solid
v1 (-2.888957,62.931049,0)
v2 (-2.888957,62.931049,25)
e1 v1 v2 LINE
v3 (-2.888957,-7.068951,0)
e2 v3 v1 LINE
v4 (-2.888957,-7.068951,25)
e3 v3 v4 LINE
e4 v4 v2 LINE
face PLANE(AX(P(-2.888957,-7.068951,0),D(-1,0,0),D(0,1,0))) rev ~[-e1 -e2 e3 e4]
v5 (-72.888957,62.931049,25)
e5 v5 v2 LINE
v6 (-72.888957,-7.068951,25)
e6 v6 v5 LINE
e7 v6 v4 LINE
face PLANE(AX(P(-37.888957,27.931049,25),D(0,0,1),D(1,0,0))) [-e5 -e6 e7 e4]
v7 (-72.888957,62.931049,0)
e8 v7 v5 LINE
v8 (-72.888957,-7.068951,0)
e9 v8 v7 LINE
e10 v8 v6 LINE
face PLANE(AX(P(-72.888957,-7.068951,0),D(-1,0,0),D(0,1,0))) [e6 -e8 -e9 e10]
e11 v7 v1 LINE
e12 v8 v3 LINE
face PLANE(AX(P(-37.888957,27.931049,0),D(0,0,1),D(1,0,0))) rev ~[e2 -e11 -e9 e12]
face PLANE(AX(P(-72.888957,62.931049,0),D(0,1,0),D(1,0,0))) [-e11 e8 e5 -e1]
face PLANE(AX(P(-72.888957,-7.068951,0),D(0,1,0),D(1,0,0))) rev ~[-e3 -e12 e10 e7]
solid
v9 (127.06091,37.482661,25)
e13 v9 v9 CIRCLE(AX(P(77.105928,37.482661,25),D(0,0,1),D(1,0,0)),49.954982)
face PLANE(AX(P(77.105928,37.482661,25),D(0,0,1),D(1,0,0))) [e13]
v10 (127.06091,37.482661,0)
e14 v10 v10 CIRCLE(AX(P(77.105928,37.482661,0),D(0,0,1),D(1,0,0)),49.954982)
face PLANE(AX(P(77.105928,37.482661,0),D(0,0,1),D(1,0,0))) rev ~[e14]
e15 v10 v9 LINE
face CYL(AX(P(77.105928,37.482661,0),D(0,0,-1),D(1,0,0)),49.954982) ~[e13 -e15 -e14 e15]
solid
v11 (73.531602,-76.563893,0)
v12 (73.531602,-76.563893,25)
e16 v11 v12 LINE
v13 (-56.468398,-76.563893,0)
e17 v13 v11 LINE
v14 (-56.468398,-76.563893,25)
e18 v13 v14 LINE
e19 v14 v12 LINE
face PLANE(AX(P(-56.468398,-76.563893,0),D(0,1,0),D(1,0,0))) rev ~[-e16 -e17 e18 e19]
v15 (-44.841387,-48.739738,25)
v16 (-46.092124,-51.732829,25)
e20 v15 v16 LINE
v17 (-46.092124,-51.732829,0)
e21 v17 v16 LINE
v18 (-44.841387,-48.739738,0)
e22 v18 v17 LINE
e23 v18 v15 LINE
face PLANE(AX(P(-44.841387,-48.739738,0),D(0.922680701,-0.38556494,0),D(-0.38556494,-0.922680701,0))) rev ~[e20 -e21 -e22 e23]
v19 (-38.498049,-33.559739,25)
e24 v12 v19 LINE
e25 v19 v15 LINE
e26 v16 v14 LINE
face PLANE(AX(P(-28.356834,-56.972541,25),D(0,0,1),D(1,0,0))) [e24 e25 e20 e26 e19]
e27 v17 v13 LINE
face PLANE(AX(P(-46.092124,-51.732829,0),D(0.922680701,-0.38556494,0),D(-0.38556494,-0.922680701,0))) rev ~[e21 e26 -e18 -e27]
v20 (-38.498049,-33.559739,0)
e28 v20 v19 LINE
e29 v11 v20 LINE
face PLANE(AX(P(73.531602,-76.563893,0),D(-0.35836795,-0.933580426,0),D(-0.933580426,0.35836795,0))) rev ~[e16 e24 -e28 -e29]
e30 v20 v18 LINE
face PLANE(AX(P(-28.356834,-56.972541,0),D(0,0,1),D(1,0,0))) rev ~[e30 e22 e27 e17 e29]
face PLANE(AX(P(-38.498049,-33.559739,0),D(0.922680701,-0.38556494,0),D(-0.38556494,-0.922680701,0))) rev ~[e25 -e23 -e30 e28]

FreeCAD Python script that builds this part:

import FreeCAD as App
import Part
import Sketcher
Q = App.Units.Quantity


def add_polygon(sketch, points):
    """Adds a closed chain of lines whose ends are joined by coincident constraints."""
    first, n = sketch.GeometryCount, len(points)
    for a, b in zip(points, points[1:] + points[:1]):
        sketch.addGeometry(Part.LineSegment(App.Vector(*a, 0), App.Vector(*b, 0)), False)
    for i in range(n):
        sketch.addConstraint(Sketcher.Constraint("Coincident", first + i, 2, first + (i + 1) % n, 1))

doc = App.newDocument("Part")
body = doc.addObject("PartDesign::Body", "Body")

sketch1 = body.newObject("Sketcher::SketchObject", "Sketch")
sketch1.AttachmentSupport = (doc.getObject("XY_Plane"), [""])
sketch1.MapMode = "FlatFace"
add_polygon(sketch1, [(-73, 63), (-73, -7), (-3, -7), (-3, 63)])
sketch1.addConstraint(Sketcher.Constraint("Vertical", 0))
sketch1.addConstraint(Sketcher.Constraint("Horizontal", 1))
sketch1.addConstraint(Sketcher.Constraint("Vertical", 2))
sketch1.addConstraint(Sketcher.Constraint("Horizontal", 3))
sketch1.addConstraint(Sketcher.Constraint("Equal", 3, 0))
sketch1.addConstraint(Sketcher.Constraint("DistanceX", 1, 1, 1, 2, Q("70 mm")))
sketch1.addConstraint(Sketcher.Constraint("DistanceY", 0, 2, -1, 1, Q("7.068951 mm")))
sketch1.addConstraint(Sketcher.Constraint("DistanceX", 0, 2, -1, 1, Q("72.888957 mm")))
pad1 = body.newObject("PartDesign::Pad", "Pad")
pad1.Profile = sketch1
pad1.Length = 25
body2 = doc.addObject("PartDesign::Body", "Body001")

sketch2 = body2.newObject("Sketcher::SketchObject", "Sketch001")
sketch2.AttachmentSupport = (doc.getObject("XY_Plane001"), [""])
sketch2.MapMode = "FlatFace"
sketch2.addGeometry(Part.Circle(App.Vector(77, 37, 0), App.Vector(0, 0, 1), 50), False)
sketch2.addConstraint(Sketcher.Constraint("Diameter", 0, Q("99.909963 mm")))
sketch2.addConstraint(Sketcher.Constraint("DistanceX", -1, 1, 0, 3, Q("77.105928 mm")))
sketch2.addConstraint(Sketcher.Constraint("DistanceY", -1, 1, 0, 3, Q("37.482661 mm")))
pad2 = body2.newObject("PartDesign::Pad", "Pad001")
pad2.Profile = sketch2
pad2.Length = 25
body3 = doc.addObject("PartDesign::Body", "Body002")

sketch3 = body3.newObject("Sketcher::SketchObject", "Sketch002")
sketch3.AttachmentSupport = (doc.getObject("XY_Plane002"), [""])
sketch3.MapMode = "FlatFace"
add_polygon(sketch3, [(-44.8, -48.7), (-46.1, -51.7), (-56.5, -76.6), (73.5, -76.6), (-38.5, -33.6)])
sketch3.addConstraint(Sketcher.Constraint("Horizontal", 2))
sketch3.addConstraint(Sketcher.Constraint("Parallel", 0, 1))
sketch3.addConstraint(Sketcher.Constraint("Parallel", 1, 4))
sketch3.addConstraint(Sketcher.Constraint("DistanceX", 2, 1, 2, 2, Q("130 mm")))
sketch3.addConstraint(Sketcher.Constraint("Angle", 3, Q("159 deg")))
sketch3.addConstraint(Sketcher.Constraint("Distance", 3, Q("120 mm")))
sketch3.addConstraint(Sketcher.Constraint("DistanceY", 4, 2, 3, 2, Q("15.179999 mm")))
sketch3.addConstraint(Sketcher.Constraint("DistanceX", 1, 2, -1, 1, Q("56.468398 mm")))
sketch3.addConstraint(Sketcher.Constraint("Distance", 0, Q("3.243908 mm")))
sketch3.addConstraint(Sketcher.Constraint("DistanceY", 0, 2, -1, 1, Q("51.732829 mm")))
pad3 = body3.newObject("PartDesign::Pad", "Pad002")
pad3.Profile = sketch3
pad3.Length = 25

doc.recompute()
